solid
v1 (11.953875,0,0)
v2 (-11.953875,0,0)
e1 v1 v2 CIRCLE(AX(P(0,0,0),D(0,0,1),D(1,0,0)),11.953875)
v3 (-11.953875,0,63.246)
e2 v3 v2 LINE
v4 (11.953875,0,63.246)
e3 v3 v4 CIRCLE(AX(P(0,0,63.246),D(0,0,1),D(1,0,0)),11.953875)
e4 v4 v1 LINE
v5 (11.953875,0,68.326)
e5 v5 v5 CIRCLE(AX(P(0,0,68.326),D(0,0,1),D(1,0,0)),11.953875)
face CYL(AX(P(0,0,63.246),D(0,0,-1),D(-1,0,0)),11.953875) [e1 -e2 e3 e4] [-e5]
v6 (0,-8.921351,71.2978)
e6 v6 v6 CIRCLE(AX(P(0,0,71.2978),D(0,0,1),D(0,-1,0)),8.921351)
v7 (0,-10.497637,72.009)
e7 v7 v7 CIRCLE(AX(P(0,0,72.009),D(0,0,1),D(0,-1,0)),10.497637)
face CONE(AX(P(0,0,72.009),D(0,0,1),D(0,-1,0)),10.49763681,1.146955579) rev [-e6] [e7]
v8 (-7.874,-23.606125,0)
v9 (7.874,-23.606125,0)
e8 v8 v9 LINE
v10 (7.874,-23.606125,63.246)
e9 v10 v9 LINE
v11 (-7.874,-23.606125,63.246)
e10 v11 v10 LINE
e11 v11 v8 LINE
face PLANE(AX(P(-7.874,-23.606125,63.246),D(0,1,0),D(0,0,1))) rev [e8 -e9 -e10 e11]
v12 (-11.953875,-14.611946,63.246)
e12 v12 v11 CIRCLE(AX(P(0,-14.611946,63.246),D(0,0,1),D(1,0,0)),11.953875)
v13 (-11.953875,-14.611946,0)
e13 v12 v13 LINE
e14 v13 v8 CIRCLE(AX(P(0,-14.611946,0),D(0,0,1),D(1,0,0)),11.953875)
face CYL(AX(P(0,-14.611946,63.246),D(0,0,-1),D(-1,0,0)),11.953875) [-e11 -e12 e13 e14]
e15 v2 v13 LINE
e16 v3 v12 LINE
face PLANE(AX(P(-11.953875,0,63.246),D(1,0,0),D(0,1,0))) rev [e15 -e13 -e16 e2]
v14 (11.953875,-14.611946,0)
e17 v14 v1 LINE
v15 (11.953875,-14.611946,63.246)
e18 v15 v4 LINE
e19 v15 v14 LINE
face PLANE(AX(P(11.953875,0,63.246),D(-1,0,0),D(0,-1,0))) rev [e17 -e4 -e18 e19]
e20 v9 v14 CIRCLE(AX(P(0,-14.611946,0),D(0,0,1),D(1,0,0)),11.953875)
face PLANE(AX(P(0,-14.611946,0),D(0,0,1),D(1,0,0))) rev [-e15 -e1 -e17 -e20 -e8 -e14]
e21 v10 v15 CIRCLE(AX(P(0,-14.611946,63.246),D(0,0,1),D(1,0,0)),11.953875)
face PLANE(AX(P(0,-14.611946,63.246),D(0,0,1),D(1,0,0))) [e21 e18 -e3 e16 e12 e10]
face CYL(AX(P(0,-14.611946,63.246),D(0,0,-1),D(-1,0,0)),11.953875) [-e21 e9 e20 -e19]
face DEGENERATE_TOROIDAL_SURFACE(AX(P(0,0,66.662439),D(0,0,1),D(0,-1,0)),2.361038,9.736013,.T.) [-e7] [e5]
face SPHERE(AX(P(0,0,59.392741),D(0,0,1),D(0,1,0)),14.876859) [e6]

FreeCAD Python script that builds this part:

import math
import FreeCAD as App
import Part
import Sketcher
from FreeCAD import Vector
Q = App.Units.Quantity

doc = App.newDocument("Part")
body = doc.addObject("PartDesign::Body", "Body")

# Sketch on XY plane
sketch1 = doc.addObject("Sketcher::SketchObject", "Sketch")
body.addObject(sketch1)
sketch1.AttachmentSupport = (doc.XY_Plane, [""])
sketch1.MapMode = "FlatFace"
sketch1.addGeometry([
    Part.LineSegment(Vector(-8, -24, 0), Vector(8, -24, 0)),  # 0
    Part.ArcOfCircle(Part.Circle(Vector(0, -15, 0), Vector(0, 0, 1), 12), math.radians(-49), math.radians(0)),  # 1
    Part.LineSegment(Vector(12, -15, 0), Vector(12, 0, 0)),  # 2
    Part.ArcOfCircle(Part.Circle(Vector(0, 0, 0), Vector(0, 0, 1), 12), math.radians(0), math.radians(180)),  # 3
    Part.LineSegment(Vector(-12, 0, 0), Vector(-12, -15, 0)),  # 4
    Part.ArcOfCircle(Part.Circle(Vector(0, -15, 0), Vector(0, 0, 1), 12), math.radians(-180), math.radians(-131)),  # 5
], False)
sketch1.addConstraint([
    Sketcher.Constraint("Coincident", 0, 2, 1, 1),
    Sketcher.Constraint("Tangent", 1, 2, 2, 1),
    Sketcher.Constraint("Tangent", 2, 2, 3, 1),
    Sketcher.Constraint("Tangent", 3, 2, 4, 1),
    Sketcher.Constraint("Tangent", 4, 2, 5, 1),
    Sketcher.Constraint("Coincident", 5, 2, 0, 1),
    Sketcher.Constraint("Horizontal", 0),
    Sketcher.Constraint("Vertical", 2),
    Sketcher.Constraint("Vertical", 4),
    Sketcher.Constraint("Coincident", 3, 3, -1, 1),
    Sketcher.Constraint("Coincident", 5, 3, 1, 3),
    Sketcher.Constraint("Equal", 1, 3),
    Sketcher.Constraint("DistanceX", 0, 1, 0, 2, Q("0.62 in")),
    Sketcher.Constraint("Radius", 1, Q("11.953875 mm")),
    Sketcher.Constraint("DistanceY", 2, 1, 2, 2, Q("14.611946 mm")),
])
pad1 = doc.addObject("PartDesign::Pad", "Pad")
body.addObject(pad1)
pad1.Profile = sketch1
pad1.Length = Q("2.49 in")

# Sketch on XY plane
sketch2 = doc.addObject("Sketcher::SketchObject", "Sketch001")
body.addObject(sketch2)
sketch2.AttachmentSupport = (doc.XY_Plane, [""])
sketch2.MapMode = "FlatFace"
sketch2.AttachmentOffset = App.Placement(Vector(0, 0, 2.49 * 25.4), App.Rotation())
sketch2.addGeometry(Part.Circle(Vector(0, 0, 0), Vector(0, 0, 1), 12), False)
sketch2.addConstraint([
    Sketcher.Constraint("Coincident", 0, 3, -1, 1),
    Sketcher.Constraint("Diameter", 0, Q("23.90775 mm")),
])
pad2 = doc.addObject("PartDesign::Pad", "Pad001")
body.addObject(pad2)
pad2.Profile = sketch2
pad2.Length = Q("0.2 in")

# Sketch on YZ plane
sketch3 = doc.addObject("Sketcher::SketchObject", "Sketch002")
body.addObject(sketch3)
sketch3.AttachmentSupport = (doc.YZ_Plane, [""])
sketch3.MapMode = "FlatFace"
sketch3.addGeometry([
    Part.LineSegment(Vector(0, 74.3, 0), Vector(0, 68.3, 0)),  # 0
    Part.LineSegment(Vector(0, 68.3, 0), Vector(12, 68.3, 0)),  # 1
    Part.ArcOfCircle(Part.Circle(Vector(2.4, 66.7, 0), Vector(0, 0, 1), 9.7), math.radians(10), math.radians(33)),  # 2
    Part.LineSegment(Vector(10.5, 72, 0), Vector(8.9, 71.3, 0)),  # 3
    Part.ArcOfCircle(Part.Circle(Vector(0, 59.4, 0), Vector(0, 0, 1), 14.9), math.radians(53), math.radians(90)),  # 4
], False)
sketch3.addConstraint([
    Sketcher.Constraint("Coincident", 0, 2, 1, 1),
    Sketcher.Constraint("Coincident", 1, 2, 2, 1),
    Sketcher.Constraint("Coincident", 2, 2, 3, 1),
    Sketcher.Constraint("Coincident", 3, 2, 4, 1),
    Sketcher.Constraint("Coincident", 4, 2, 0, 1),
    Sketcher.Constraint("Vertical", 0),
    Sketcher.Constraint("Horizontal", 1),
    Sketcher.Constraint("PointOnObject", 4, 3, -2),
    Sketcher.Constraint("PointOnObject", 0, 2, -2),
    Sketcher.Constraint("DistanceY", 0, 2, 0, 1, Q("0.234 in")),
    Sketcher.Constraint("DistanceY", -1, 1, 0, 2, Q("2.69 in")),
    Sketcher.Constraint("DistanceY", -1, 1, 2, 2, Q("2.835 in")),
    Sketcher.Constraint("DistanceY", -1, 1, 3, 2, Q("2.807 in")),
    Sketcher.Constraint("Radius", 4, Q("14.876859 mm")),
    Sketcher.Constraint("Radius", 2, Q("9.736013 mm")),
    Sketcher.Constraint("Distance", 3, Q("1.729301 mm")),
    Sketcher.Constraint("DistanceX", 2, 3, 2, 2, Q("8.136598 mm")),
])
revolution = doc.addObject("PartDesign::Revolution", "Revolution")
body.addObject(revolution)
revolution.Profile = sketch3
revolution.ReferenceAxis = (sketch3, ["V_Axis"])
revolution.Angle = 360

doc.recompute()
